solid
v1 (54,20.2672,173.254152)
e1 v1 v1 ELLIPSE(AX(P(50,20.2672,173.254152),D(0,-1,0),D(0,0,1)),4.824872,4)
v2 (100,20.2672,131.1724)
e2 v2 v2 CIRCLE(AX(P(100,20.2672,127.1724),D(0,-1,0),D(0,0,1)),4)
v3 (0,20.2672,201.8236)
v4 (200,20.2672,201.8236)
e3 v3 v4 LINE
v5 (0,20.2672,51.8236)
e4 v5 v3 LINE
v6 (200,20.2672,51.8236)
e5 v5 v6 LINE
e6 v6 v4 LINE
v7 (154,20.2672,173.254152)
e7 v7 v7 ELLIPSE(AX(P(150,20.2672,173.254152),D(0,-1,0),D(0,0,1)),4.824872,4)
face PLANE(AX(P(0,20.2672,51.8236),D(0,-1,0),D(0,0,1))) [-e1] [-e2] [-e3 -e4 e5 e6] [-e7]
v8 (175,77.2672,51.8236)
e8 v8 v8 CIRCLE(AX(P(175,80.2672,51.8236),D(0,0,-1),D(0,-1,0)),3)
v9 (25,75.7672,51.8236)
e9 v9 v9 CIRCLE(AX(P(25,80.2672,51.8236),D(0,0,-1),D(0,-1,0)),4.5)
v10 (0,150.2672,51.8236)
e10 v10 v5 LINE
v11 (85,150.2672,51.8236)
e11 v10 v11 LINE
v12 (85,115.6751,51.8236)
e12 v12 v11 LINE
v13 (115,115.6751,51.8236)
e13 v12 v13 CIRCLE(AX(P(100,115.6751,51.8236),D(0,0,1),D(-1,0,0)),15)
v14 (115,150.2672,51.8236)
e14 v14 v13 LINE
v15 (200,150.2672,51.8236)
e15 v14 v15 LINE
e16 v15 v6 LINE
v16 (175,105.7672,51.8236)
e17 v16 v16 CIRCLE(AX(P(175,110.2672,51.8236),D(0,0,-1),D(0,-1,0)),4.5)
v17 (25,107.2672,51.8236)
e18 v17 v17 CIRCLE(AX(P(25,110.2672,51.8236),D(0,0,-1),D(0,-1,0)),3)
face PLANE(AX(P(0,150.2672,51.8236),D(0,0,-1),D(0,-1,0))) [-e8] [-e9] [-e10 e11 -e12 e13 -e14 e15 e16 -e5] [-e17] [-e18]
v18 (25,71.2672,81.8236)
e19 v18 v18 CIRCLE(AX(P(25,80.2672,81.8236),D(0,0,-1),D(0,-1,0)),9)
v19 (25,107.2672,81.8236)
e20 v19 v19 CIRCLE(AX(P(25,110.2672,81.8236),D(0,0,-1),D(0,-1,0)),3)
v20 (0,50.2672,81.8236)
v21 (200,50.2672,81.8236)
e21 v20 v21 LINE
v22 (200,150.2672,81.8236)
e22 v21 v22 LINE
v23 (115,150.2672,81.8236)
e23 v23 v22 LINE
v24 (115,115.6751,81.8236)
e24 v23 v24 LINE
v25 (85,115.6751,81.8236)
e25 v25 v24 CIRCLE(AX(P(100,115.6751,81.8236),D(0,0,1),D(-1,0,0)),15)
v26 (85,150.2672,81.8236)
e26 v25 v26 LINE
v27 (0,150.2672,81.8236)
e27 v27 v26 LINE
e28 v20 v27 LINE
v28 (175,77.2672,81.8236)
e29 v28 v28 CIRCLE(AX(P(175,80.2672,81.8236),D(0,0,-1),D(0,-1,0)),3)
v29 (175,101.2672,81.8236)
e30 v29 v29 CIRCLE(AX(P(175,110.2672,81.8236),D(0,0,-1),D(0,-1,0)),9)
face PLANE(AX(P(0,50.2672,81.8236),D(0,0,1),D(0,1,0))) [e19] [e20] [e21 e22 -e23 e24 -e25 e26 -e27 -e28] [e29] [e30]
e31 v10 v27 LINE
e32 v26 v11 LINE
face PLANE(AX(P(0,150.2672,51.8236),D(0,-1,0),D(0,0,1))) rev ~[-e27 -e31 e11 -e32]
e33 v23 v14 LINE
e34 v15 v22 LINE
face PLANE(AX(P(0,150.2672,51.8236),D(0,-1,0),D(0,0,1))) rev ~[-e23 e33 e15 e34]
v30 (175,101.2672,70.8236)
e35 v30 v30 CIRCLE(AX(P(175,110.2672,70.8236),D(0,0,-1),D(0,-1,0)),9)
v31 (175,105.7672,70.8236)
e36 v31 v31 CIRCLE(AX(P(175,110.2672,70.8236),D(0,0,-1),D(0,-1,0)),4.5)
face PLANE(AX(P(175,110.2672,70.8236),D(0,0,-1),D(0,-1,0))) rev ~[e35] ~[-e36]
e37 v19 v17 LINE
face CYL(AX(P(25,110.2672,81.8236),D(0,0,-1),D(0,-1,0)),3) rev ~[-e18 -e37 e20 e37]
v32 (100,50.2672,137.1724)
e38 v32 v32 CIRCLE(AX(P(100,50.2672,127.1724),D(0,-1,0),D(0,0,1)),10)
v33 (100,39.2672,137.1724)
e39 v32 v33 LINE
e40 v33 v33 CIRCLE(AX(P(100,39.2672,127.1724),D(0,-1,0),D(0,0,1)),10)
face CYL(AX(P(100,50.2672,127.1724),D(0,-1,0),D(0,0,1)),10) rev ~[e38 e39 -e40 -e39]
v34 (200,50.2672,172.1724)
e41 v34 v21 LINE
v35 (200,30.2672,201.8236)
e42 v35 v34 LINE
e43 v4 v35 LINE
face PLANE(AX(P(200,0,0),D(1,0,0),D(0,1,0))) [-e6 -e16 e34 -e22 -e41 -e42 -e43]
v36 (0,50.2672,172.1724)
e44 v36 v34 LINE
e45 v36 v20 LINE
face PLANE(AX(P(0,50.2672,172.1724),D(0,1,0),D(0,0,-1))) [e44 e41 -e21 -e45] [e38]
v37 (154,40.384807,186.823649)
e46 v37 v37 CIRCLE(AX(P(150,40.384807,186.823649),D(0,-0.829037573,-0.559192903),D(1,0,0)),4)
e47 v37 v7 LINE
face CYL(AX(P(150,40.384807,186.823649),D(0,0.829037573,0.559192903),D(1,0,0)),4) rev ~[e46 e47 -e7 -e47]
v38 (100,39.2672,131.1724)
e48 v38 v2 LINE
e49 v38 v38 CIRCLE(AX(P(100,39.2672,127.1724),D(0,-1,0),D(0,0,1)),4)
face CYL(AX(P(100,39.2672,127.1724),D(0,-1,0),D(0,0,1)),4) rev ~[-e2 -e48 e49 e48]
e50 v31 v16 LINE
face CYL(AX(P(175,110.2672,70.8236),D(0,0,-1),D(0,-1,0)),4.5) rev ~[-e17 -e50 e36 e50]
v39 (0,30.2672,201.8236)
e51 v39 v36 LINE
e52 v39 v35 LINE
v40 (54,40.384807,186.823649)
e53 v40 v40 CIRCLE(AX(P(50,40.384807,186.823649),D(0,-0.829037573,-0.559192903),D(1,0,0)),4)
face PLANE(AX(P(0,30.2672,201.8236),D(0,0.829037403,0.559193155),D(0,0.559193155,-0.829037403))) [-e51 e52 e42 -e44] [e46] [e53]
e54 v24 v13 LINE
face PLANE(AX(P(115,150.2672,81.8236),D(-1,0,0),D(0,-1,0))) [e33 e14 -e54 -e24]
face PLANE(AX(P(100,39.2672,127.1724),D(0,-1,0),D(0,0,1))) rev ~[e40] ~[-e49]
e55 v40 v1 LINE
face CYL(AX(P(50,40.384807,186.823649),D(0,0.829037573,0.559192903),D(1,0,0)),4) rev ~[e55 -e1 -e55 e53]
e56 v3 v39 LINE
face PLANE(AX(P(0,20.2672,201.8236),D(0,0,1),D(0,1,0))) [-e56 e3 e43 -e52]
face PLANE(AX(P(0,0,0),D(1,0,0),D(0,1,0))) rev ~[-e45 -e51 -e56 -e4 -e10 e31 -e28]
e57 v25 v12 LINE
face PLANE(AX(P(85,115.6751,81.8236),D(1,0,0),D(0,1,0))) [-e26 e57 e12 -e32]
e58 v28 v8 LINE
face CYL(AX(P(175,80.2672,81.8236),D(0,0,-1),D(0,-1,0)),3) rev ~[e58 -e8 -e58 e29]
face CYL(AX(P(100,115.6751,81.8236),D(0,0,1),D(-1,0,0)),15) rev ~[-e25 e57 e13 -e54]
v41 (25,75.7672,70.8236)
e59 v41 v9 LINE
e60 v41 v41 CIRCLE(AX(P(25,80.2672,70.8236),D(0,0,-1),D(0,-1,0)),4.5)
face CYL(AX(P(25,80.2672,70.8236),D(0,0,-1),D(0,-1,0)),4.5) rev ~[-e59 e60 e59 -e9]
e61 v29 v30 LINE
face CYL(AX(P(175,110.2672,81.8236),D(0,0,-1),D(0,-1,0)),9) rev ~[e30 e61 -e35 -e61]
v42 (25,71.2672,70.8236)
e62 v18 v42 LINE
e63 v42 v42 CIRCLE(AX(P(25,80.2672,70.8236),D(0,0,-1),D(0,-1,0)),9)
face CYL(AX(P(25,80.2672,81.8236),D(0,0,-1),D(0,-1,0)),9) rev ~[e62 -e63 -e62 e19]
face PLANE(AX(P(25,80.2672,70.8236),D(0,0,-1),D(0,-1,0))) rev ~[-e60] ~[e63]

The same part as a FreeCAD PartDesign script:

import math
import FreeCAD as App
import Part
import Sketcher
from FreeCAD import Vector
Q = App.Units.Quantity


def add_polygon(sketch, points):
    """Adds a closed chain of lines whose ends are joined by coincident constraints."""
    first, n = sketch.GeometryCount, len(points)
    for a, b in zip(points, points[1:] + points[:1]):
        sketch.addGeometry(Part.LineSegment(App.Vector(*a, 0), App.Vector(*b, 0)), False)
    for i in range(n):
        sketch.addConstraint(Sketcher.Constraint("Coincident", first + i, 2, first + (i + 1) % n, 1))

doc = App.newDocument("Part")
body = doc.addObject("PartDesign::Body", "Body")

# Sketch on YZ plane
sketch1 = doc.addObject("Sketcher::SketchObject", "Sketch")
body.addObject(sketch1)
sketch1.AttachmentSupport = (doc.YZ_Plane, [""])
sketch1.MapMode = "FlatFace"
add_polygon(sketch1, [(20, 52), (150, 52), (150, 82), (50, 82), (50, 172), (30, 202), (20, 202)])  # lines 0-6
sketch1.addConstraint([
    Sketcher.Constraint("Horizontal", 0),
    Sketcher.Constraint("Vertical", 1),
    Sketcher.Constraint("Horizontal", 2),
    Sketcher.Constraint("Vertical", 3),
    Sketcher.Constraint("Horizontal", 5),
    Sketcher.Constraint("Vertical", 6),
    Sketcher.Constraint("DistanceX", 0, 1, 0, 2, Q("130 mm")),
    Sketcher.Constraint("DistanceY", 1, 1, 1, 2, Q("30 mm")),
    Sketcher.Constraint("DistanceY", 6, 2, 6, 1, Q("150 mm")),
    Sketcher.Constraint("DistanceX", 4, 2, 3, 2, Q("20 mm")),
    Sketcher.Constraint("DistanceX", 5, 2, 3, 2, Q("30 mm")),
    Sketcher.Constraint("Angle", 4, Q("124 deg")),
    Sketcher.Constraint("DistanceX", -1, 1, 0, 2, Q("150.2672 mm")),
    Sketcher.Constraint("DistanceY", -1, 1, 0, 2, Q("51.8236 mm")),
])
pad1 = doc.addObject("PartDesign::Pad", "Pad")
body.addObject(pad1)
pad1.Profile = sketch1
pad1.Length = 200

# Sketch on an angled plane
sketch2 = doc.addObject("Sketcher::SketchObject", "Sketch001")
body.addObject(sketch2)
sketch2.Placement = App.Placement(Vector(0, 50.2672, 172.1724), App.Rotation(Vector(1, 0, 0), Vector(0, 0.559192903, -0.829037573), Vector(0, 0.829037573, 0.559192903), "ZXY"))
sketch2.addGeometry([
    Part.Circle(Vector(150, -17.7, 0), Vector(0, 0, 1), 4),
    Part.Circle(Vector(50, -17.7, 0), Vector(0, 0, 1), 4),
], False)
sketch2.addConstraint([
    Sketcher.Constraint("Equal", 0, 1),
    Sketcher.Constraint("Horizontal", 0, 3, 1, 3),
    Sketcher.Constraint("Diameter", 0, Q("8 mm")),
    Sketcher.Constraint("DistanceX", -1, 1, 1, 3, Q("50 mm")),
    Sketcher.Constraint("DistanceX", 1, 3, 0, 3, Q("100 mm")),
    Sketcher.Constraint("DistanceY", 0, 3, -1, 1, Q("17.6726 mm")),
])
pocket1 = doc.addObject("PartDesign::Pocket", "Pocket")
body.addObject(pocket1)
pocket1.Profile = sketch2
pocket1.Type = "UpToFirst"

# Sketch on XY plane
sketch3 = doc.addObject("Sketcher::SketchObject", "Sketch002")
body.addObject(sketch3)
sketch3.AttachmentSupport = (doc.XY_Plane, [""])
sketch3.MapMode = "FlatFace"
sketch3.AttachmentOffset = App.Placement(Vector(0, 0, 81.8236), App.Rotation())
sketch3.addGeometry([
    Part.LineSegment(Vector(115, 150, 0), Vector(85, 150, 0)),
    Part.LineSegment(Vector(85, 150, 0), Vector(85, 116, 0)),
    Part.ArcOfCircle(Part.Circle(Vector(100, 116, 0), Vector(0, 0, 1), 15), math.radians(180), math.radians(360)),
    Part.LineSegment(Vector(115, 116, 0), Vector(115, 150, 0)),
], False)
sketch3.addConstraint([
    Sketcher.Constraint("Coincident", 0, 2, 1, 1),
    Sketcher.Constraint("Tangent", 1, 2, 2, 1),
    Sketcher.Constraint("Tangent", 2, 2, 3, 1),
    Sketcher.Constraint("Coincident", 3, 2, 0, 1),
    Sketcher.Constraint("Horizontal", 0),
    Sketcher.Constraint("Vertical", 1),
    Sketcher.Constraint("Vertical", 3),
    Sketcher.Constraint("Radius", 2, Q("15 mm")),
    Sketcher.Constraint("DistanceX", -1, 1, 2, 3, Q("100 mm")),
    Sketcher.Constraint("DistanceY", 1, 2, 1, 1, Q("34.592 mm")),
    Sketcher.Constraint("DistanceY", -1, 1, 2, 3, Q("115.675 mm")),
])
pocket2 = doc.addObject("PartDesign::Pocket", "Pocket001")
body.addObject(pocket2)
pocket2.Profile = sketch3
pocket2.Type = "UpToFirst"

# Sketch on XY plane
sketch4 = doc.addObject("Sketcher::SketchObject", "Sketch003")
body.addObject(sketch4)
sketch4.AttachmentSupport = (doc.XY_Plane, [""])
sketch4.MapMode = "FlatFace"
sketch4.AttachmentOffset = App.Placement(Vector(0, 0, 81.8236), App.Rotation())
sketch4.addGeometry(Part.Circle(Vector(175, 80.3, 0), Vector(0, 0, 1), 3), False)
sketch4.addConstraint([
    Sketcher.Constraint("Diameter", 0, Q("6 mm")),
    Sketcher.Constraint("DistanceX", -1, 1, 0, 3, Q("175 mm")),
    Sketcher.Constraint("DistanceY", -1, 1, 0, 3, Q("80.2672 mm")),
])
doc.recompute()
hole = doc.addObject("PartDesign::Hole", "Hole")
body.addObject(hole)
hole.Profile = sketch4
hole.ThreadType = "None"
hole.Diameter = 6
hole.DepthType = "Dimension"
hole.Depth = 85
hole.DrillPoint = "Angled"
hole.DrillPointAngle = 118

# Sketch on XY plane
sketch5 = doc.addObject("Sketcher::SketchObject", "Sketch004")
body.addObject(sketch5)
sketch5.AttachmentSupport = (doc.XY_Plane, [""])
sketch5.MapMode = "FlatFace"
sketch5.AttachmentOffset = App.Placement(Vector(0, 0, 81.8236), App.Rotation())
sketch5.addGeometry(Part.Circle(Vector(175, 110.3, 0), Vector(0, 0, 1), 4.5), False)
sketch5.addConstraint([
    Sketcher.Constraint("Diameter", 0, Q("9 mm")),
    Sketcher.Constraint("DistanceX", -1, 1, 0, 3, Q("175 mm")),
    Sketcher.Constraint("DistanceY", -1, 1, 0, 3, Q("110.2672 mm")),
])
doc.recompute()
hole2 = doc.addObject("PartDesign::Hole", "Hole001")
body.addObject(hole2)
hole2.Profile = sketch5
hole2.ThreadType = "None"
hole2.Diameter = 9
hole2.DepthType = "Dimension"
hole2.Depth = 30
hole2.DrillPoint = "Angled"
hole2.DrillPointAngle = 118
hole2.HoleCutType = "Counterbore"
hole2.HoleCutDiameter = 18
hole2.HoleCutDepth = 11

# Sketch on XY plane
sketch6 = doc.addObject("Sketcher::SketchObject", "Sketch005")
body.addObject(sketch6)
sketch6.AttachmentSupport = (doc.XY_Plane, [""])
sketch6.MapMode = "FlatFace"
sketch6.AttachmentOffset = App.Placement(Vector(0, 0, 81.8236), App.Rotation())
sketch6.addGeometry(Part.Circle(Vector(25, 80.3, 0), Vector(0, 0, 1), 4.5), False)
sketch6.addConstraint([
    Sketcher.Constraint("Diameter", 0, Q("9 mm")),
    Sketcher.Constraint("DistanceX", -1, 1, 0, 3, Q("25 mm")),
    Sketcher.Constraint("DistanceY", -1, 1, 0, 3, Q("80.2672 mm")),
])
doc.recompute()
hole3 = doc.addObject("PartDesign::Hole", "Hole002")
body.addObject(hole3)
hole3.Profile = sketch6
hole3.ThreadType = "None"
hole3.Diameter = 9
hole3.DepthType = "Dimension"
hole3.Depth = 30
hole3.DrillPoint = "Angled"
hole3.DrillPointAngle = 118
hole3.HoleCutType = "Counterbore"
hole3.HoleCutDiameter = 18
hole3.HoleCutDepth = 11

# Sketch on XY plane
sketch7 = doc.addObject("Sketcher::SketchObject", "Sketch006")
body.addObject(sketch7)
sketch7.AttachmentSupport = (doc.XY_Plane, [""])
sketch7.MapMode = "FlatFace"
sketch7.AttachmentOffset = App.Placement(Vector(0, 0, 81.8236), App.Rotation())
sketch7.addGeometry(Part.Circle(Vector(25, 110.3, 0), Vector(0, 0, 1), 3), False)
sketch7.addConstraint([
    Sketcher.Constraint("Diameter", 0, Q("6 mm")),
    Sketcher.Constraint("DistanceX", -1, 1, 0, 3, Q("25 mm")),
    Sketcher.Constraint("DistanceY", -1, 1, 0, 3, Q("110.2672 mm")),
])
doc.recompute()
hole4 = doc.addObject("PartDesign::Hole", "Hole003")
body.addObject(hole4)
hole4.Profile = sketch7
hole4.ThreadType = "None"
hole4.Diameter = 6
hole4.DepthType = "Dimension"
hole4.Depth = 30
hole4.DrillPoint = "Angled"
hole4.DrillPointAngle = 118

# Sketch on XZ plane
sketch8 = doc.addObject("Sketcher::SketchObject", "Sketch007")
body.addObject(sketch8)
sketch8.AttachmentSupport = (doc.XZ_Plane, [""])
sketch8.MapMode = "FlatFace"
sketch8.AttachmentOffset = App.Placement(Vector(0, 0, -50.2672), App.Rotation())
sketch8.addGeometry(Part.Circle(Vector(100, 127.2, 0), Vector(0, 0, 1), 4), False)
sketch8.addConstraint([
    Sketcher.Constraint("Diameter", 0, Q("8 mm")),
    Sketcher.Constraint("DistanceX", -1, 1, 0, 3, Q("100 mm")),
    Sketcher.Constraint("DistanceY", -1, 1, 0, 3, Q("127.1724 mm")),
])
doc.recompute()
hole5 = doc.addObject("PartDesign::Hole", "Hole004")
body.addObject(hole5)
hole5.Profile = sketch8
hole5.ThreadType = "None"
hole5.Diameter = 8
hole5.DepthType = "Dimension"
hole5.Depth = 30
hole5.DrillPoint = "Angled"
hole5.DrillPointAngle = 118
hole5.HoleCutType = "Counterbore"
hole5.HoleCutDiameter = 20
hole5.HoleCutDepth = 11
hole5.Reversed = True

doc.recompute()
